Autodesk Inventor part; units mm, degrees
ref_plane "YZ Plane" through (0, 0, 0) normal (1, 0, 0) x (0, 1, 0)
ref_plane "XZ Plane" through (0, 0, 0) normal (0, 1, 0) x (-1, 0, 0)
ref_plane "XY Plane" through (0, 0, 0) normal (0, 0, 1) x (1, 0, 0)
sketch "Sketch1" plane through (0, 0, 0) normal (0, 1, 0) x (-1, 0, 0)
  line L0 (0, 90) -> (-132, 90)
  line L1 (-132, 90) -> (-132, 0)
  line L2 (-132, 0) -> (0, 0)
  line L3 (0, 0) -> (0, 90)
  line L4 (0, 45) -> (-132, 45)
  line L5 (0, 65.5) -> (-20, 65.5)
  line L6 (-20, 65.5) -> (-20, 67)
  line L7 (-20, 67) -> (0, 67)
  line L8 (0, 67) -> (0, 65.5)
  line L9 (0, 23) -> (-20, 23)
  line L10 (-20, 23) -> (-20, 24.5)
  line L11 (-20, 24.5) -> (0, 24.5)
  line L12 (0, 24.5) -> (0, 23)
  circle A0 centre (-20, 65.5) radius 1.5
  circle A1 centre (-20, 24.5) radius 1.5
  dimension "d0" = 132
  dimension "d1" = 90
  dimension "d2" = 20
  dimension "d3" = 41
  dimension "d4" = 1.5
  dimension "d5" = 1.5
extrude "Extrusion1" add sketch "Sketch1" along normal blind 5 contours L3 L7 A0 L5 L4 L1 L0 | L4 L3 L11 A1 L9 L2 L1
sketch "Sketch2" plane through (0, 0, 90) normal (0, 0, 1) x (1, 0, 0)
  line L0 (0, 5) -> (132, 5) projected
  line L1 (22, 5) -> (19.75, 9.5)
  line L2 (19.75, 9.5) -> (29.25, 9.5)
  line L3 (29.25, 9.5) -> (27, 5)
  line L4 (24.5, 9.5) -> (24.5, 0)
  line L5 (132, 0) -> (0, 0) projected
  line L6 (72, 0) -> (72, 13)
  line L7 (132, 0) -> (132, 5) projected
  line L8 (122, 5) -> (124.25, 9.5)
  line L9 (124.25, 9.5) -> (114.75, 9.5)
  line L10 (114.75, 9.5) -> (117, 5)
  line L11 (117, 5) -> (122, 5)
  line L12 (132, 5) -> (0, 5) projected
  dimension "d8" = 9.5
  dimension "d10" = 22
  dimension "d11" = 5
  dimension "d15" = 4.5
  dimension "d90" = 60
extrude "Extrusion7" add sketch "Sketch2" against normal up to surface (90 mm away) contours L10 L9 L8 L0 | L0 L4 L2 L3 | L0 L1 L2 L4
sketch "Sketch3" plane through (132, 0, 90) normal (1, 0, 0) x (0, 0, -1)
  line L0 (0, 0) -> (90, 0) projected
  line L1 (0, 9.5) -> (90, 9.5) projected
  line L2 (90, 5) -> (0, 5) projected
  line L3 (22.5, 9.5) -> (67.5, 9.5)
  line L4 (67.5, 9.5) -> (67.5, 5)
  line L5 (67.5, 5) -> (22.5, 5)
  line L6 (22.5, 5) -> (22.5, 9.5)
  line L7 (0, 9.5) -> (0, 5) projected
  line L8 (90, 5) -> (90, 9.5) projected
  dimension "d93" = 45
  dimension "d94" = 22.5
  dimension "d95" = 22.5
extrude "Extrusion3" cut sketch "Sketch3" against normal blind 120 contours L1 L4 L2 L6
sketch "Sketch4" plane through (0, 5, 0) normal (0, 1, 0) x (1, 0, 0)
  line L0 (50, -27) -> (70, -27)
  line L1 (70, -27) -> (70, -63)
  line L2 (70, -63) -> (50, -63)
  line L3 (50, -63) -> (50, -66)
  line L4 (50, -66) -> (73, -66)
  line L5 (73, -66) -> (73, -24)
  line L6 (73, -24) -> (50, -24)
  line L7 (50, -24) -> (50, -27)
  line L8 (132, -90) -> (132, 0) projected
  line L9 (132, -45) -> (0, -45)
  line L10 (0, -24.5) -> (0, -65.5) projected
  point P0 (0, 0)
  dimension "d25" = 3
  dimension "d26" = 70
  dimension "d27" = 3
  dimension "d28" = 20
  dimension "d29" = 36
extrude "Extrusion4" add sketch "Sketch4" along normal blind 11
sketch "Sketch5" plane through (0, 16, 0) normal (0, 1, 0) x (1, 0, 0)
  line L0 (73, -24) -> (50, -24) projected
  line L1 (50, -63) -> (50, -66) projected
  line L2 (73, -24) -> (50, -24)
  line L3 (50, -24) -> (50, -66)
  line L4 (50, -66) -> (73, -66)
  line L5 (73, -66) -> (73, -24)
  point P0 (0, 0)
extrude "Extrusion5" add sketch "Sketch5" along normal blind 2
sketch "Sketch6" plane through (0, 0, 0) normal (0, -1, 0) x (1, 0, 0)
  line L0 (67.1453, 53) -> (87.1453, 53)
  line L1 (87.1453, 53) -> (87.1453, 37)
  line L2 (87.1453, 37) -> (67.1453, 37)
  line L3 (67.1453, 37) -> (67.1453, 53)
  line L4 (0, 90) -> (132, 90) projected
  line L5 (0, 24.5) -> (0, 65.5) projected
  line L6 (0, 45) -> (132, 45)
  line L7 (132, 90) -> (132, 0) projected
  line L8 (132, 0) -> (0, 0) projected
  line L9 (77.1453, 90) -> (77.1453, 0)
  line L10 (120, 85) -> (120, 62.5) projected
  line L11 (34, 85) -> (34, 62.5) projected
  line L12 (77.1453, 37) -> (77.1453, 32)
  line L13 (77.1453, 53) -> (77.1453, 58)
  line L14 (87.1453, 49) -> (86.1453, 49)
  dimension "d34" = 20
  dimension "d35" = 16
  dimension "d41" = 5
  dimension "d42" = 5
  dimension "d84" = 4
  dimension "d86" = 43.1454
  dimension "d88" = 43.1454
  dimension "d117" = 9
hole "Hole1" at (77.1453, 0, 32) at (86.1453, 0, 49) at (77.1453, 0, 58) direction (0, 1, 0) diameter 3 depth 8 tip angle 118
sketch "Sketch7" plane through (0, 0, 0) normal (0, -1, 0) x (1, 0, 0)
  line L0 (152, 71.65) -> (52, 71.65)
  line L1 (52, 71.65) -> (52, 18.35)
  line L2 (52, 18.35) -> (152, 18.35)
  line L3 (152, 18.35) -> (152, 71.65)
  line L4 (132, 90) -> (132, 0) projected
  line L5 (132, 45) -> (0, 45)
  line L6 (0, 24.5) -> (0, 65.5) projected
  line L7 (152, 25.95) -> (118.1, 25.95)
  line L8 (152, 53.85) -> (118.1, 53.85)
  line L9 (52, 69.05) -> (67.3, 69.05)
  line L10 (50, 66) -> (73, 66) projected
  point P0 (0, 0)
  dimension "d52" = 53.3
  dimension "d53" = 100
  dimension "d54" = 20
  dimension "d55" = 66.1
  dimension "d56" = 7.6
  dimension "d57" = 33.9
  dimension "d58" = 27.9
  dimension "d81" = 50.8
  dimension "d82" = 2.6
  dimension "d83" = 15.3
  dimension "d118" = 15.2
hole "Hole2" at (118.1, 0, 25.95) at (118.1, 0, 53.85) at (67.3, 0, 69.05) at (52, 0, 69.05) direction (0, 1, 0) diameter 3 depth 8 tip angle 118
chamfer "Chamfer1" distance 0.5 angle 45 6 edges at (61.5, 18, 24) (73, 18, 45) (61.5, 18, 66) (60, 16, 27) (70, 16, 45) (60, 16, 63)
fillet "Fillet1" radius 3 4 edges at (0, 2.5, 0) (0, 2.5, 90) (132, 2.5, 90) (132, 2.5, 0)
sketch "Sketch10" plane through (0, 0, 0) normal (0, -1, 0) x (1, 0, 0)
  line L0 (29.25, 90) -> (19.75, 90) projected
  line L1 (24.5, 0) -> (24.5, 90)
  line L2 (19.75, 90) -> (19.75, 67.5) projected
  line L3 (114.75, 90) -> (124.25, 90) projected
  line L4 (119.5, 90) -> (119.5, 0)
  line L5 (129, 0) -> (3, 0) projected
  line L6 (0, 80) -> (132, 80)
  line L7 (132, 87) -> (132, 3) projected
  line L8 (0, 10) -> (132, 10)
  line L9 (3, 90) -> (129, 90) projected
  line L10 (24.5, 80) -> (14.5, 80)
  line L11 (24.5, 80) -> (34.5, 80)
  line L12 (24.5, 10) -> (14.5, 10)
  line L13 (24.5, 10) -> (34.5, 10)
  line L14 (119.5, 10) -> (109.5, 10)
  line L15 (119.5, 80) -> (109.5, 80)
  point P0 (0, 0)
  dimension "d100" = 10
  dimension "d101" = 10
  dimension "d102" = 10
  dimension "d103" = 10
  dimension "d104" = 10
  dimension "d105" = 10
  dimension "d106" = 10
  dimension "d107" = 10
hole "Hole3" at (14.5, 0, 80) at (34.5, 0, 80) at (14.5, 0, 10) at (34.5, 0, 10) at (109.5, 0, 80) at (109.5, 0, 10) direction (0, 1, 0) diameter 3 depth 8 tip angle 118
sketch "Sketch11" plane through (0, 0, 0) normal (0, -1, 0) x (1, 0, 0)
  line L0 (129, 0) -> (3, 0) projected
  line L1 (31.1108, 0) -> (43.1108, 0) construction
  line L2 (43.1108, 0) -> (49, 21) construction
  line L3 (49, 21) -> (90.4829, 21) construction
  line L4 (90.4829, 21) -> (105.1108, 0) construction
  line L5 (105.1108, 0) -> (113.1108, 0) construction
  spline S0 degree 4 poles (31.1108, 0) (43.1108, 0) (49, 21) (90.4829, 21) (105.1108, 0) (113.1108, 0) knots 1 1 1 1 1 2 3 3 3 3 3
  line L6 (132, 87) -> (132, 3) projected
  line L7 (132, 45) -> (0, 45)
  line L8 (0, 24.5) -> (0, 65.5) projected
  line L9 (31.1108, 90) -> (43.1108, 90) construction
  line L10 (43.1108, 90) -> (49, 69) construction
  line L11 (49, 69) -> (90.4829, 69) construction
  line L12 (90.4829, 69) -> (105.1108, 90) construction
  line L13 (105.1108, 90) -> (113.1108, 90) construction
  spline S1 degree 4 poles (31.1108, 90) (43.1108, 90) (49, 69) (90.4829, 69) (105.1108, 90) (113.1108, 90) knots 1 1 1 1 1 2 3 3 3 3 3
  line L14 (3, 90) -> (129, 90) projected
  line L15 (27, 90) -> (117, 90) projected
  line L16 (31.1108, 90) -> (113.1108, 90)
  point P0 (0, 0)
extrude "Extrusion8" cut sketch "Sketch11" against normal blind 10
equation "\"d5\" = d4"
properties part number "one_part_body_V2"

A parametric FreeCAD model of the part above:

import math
import FreeCAD as App
import Part
import Sketcher
from FreeCAD import Vector


def edges_at(feature, points):
    """Names of the edges that pass closest to the given points."""
    edges = feature.Shape.Edges
    near = lambda p: min(range(len(edges)), key=lambda i: edges[i].distToShape(Part.Vertex(*p))[0])
    return sorted({f"Edge{near(p) + 1}" for p in points})


def add_polygon(sketch, points):
    """Adds a closed chain of lines whose ends are joined by coincident constraints."""
    first, n = sketch.GeometryCount, len(points)
    for a, b in zip(points, points[1:] + points[:1]):
        sketch.addGeometry(Part.LineSegment(App.Vector(*a, 0), App.Vector(*b, 0)), False)
    for i in range(n):
        sketch.addConstraint(Sketcher.Constraint("Coincident", first + i, 2, first + (i + 1) % n, 1))

doc = App.newDocument("Part")
body = doc.addObject("PartDesign::Body", "Body")

sketch1 = body.newObject("Sketcher::SketchObject", "Sketch")
sketch1.AttachmentSupport = (doc.getObject("XZ_Plane"), [""])
sketch1.MapMode = "FlatFace"
sketch1.addGeometry([
    Part.LineSegment(Vector(0, 67, 0), Vector(0, 90, 0)),
    Part.LineSegment(Vector(0, 90, 0), Vector(132, 90, 0)),
    Part.LineSegment(Vector(132, 90, 0), Vector(132, 0, 0)),
    Part.LineSegment(Vector(132, 0, 0), Vector(0, 0, 0)),
    Part.LineSegment(Vector(0, 0, 0), Vector(0, 23, 0)),
    Part.LineSegment(Vector(0, 23, 0), Vector(20, 23, 0)),
    Part.ArcOfCircle(Part.Circle(Vector(20, 24.5, 0), Vector(0, 0, 1), 1.5), math.radians(-90), math.radians(180)),
    Part.LineSegment(Vector(18.5, 24.5, 0), Vector(0, 24.5, 0)),
    Part.LineSegment(Vector(0, 24.5, 0), Vector(0, 65.5, 0)),
    Part.LineSegment(Vector(0, 65.5, 0), Vector(18.5, 65.5, 0)),
    Part.ArcOfCircle(Part.Circle(Vector(20, 65.5, 0), Vector(0, 0, 1), 1.5), math.radians(180), math.radians(450)),
    Part.LineSegment(Vector(20, 67, 0), Vector(0, 67, 0)),
], False)
sketch1.addConstraint([
    Sketcher.Constraint("Coincident", 0, 2, 1, 1),
    Sketcher.Constraint("Coincident", 1, 2, 2, 1),
    Sketcher.Constraint("Coincident", 2, 2, 3, 1),
    Sketcher.Constraint("Coincident", 3, 2, 4, 1),
    Sketcher.Constraint("Coincident", 4, 2, 5, 1),
    Sketcher.Constraint("Tangent", 5, 2, 6, 1),
    Sketcher.Constraint("Coincident", 6, 2, 7, 1),
    Sketcher.Constraint("Coincident", 7, 2, 8, 1),
    Sketcher.Constraint("Coincident", 8, 2, 9, 1),
    Sketcher.Constraint("Coincident", 9, 2, 10, 1),
    Sketcher.Constraint("Tangent", 10, 2, 11, 1),
    Sketcher.Constraint("Coincident", 11, 2, 0, 1),
    Sketcher.Constraint("Vertical", 0),
    Sketcher.Constraint("Horizontal", 1),
    Sketcher.Constraint("Vertical", 2),
    Sketcher.Constraint("Horizontal", 3),
    Sketcher.Constraint("Vertical", 4),
    Sketcher.Constraint("Horizontal", 5),
    Sketcher.Constraint("Horizontal", 7),
    Sketcher.Constraint("Vertical", 8),
    Sketcher.Constraint("Horizontal", 9),
    Sketcher.Constraint("Horizontal", 11),
    Sketcher.Constraint("Coincident", 3, 2, -1, 1),
    Sketcher.Constraint("Equal", 6, 10),
    Sketcher.Constraint("PointOnObject", 0, 2, -2),
    Sketcher.Constraint("PointOnObject", 7, 2, -2),
    Sketcher.Constraint("Horizontal", 10, 3, 8, 2),
    Sketcher.Constraint("Vertical", 6, 3, 10, 3),
    Sketcher.Constraint("Equal", 0, 4),
    Sketcher.Constraint("Radius", 6, 1.5),
    Sketcher.Constraint("DistanceX", 1, 1, 1, 2, 132.0),
    Sketcher.Constraint("DistanceX", 5, 1, 5, 2, 20.0),
    Sketcher.Constraint("DistanceY", 2, 2, 2, 1, 90.0),
    Sketcher.Constraint("DistanceY", 8, 1, 8, 2, 41.0),
    Sketcher.Constraint("DistanceY", 6, 3, 10, 3, 41.0),
])
pad1 = body.newObject("PartDesign::Pad", "Pad")
pad1.Profile = sketch1
pad1.Length = 5
pad1.Reversed = True

sketch2 = body.newObject("Sketcher::SketchObject", "Sketch001")
sketch2.AttachmentSupport = (doc.getObject("XY_Plane"), [""])
sketch2.MapMode = "FlatFace"
sketch2.AttachmentOffset = App.Placement(Vector(0, 0, 90), App.Rotation())
add_polygon(sketch2, [(115, 10), (117, 5), (122, 5), (124, 10)])
add_polygon(sketch2, [(27, 5), (29, 10), (20, 10), (22, 5)])
sketch2.addConstraint([
    Sketcher.Constraint("Horizontal", 1),
    Sketcher.Constraint("Horizontal", 3),
    Sketcher.Constraint("Horizontal", 5),
    Sketcher.Constraint("Horizontal", 7),
    Sketcher.Constraint("Parallel", 2, 4),
    Sketcher.Constraint("Parallel", 0, 6),
    Sketcher.Constraint("Horizontal", 3, 2, 4, 2),
    Sketcher.Constraint("Horizontal", 1, 2, 6, 2),
    Sketcher.Constraint("Equal", 3, 5),
    Sketcher.Constraint("Equal", 0, 2),
    Sketcher.Constraint("DistanceX", 1, 1, 1, 2, 5.0),
    Sketcher.Constraint("DistanceX", 3, 2, 3, 1, 9.5),
    Sketcher.Constraint("DistanceY", -1, 1, 0, 2, 5.0),
    Sketcher.Constraint("DistanceX", -1, 1, 6, 2, 22.0),
    Sketcher.Constraint("DistanceY", -1, 1, 2, 2, 9.5),
    Sketcher.Constraint("DistanceX", -1, 1, 0, 2, 117.0),
])
pad2 = body.newObject("PartDesign::Pad", "Pad001")
pad2.Profile = sketch2
pad2.Length = 90
pad2.Reversed = True

sketch3 = body.newObject("Sketcher::SketchObject", "Sketch002")
sketch3.AttachmentSupport = (doc.getObject("YZ_Plane"), [""])
sketch3.MapMode = "FlatFace"
sketch3.AttachmentOffset = App.Placement(Vector(0, 0, 132), App.Rotation())
add_polygon(sketch3, [(9.5, 22.5), (9.5, 67.5), (5, 67.5), (5, 22.5)])
sketch3.addConstraint([
    Sketcher.Constraint("Vertical", 0),
    Sketcher.Constraint("Horizontal", 1),
    Sketcher.Constraint("Vertical", 2),
    Sketcher.Constraint("Horizontal", 3),
    Sketcher.Constraint("DistanceY", 0, 1, 0, 2, 45.0),
    Sketcher.Constraint("DistanceY", -1, 1, 2, 2, 22.5),
    Sketcher.Constraint("DistanceX", 1, 2, 1, 1, 4.5),
    Sketcher.Constraint("DistanceX", -1, 1, 1, 2, 5.0),
])
pocket1 = body.newObject("PartDesign::Pocket", "Pocket")
pocket1.Profile = sketch3
pocket1.Length = 120

sketch4 = body.newObject("Sketcher::SketchObject", "Sketch003")
sketch4.AttachmentSupport = (doc.getObject("XZ_Plane"), [""])
sketch4.MapMode = "FlatFace"
sketch4.AttachmentOffset = App.Placement(Vector(0, 0, -5), App.Rotation())
add_polygon(sketch4, [(50, 24), (50, 27), (70, 27), (70, 63), (50, 63), (50, 66), (73, 66), (73, 24)])
sketch4.addConstraint([
    Sketcher.Constraint("Vertical", 0),
    Sketcher.Constraint("Horizontal", 1),
    Sketcher.Constraint("Vertical", 2),
    Sketcher.Constraint("Horizontal", 3),
    Sketcher.Constraint("Vertical", 4),
    Sketcher.Constraint("Horizontal", 5),
    Sketcher.Constraint("Vertical", 6),
    Sketcher.Constraint("Horizontal", 7),
    Sketcher.Constraint("Vertical", 0, 2, 3, 2),
    Sketcher.Constraint("Equal", 0, 4),
    Sketcher.Constraint("DistanceX", 1, 1, 1, 2, 20.0),
    Sketcher.Constraint("DistanceY", 0, 1, 0, 2, 3.0),
    Sketcher.Constraint("DistanceY", 2, 1, 2, 2, 36.0),
    Sketcher.Constraint("DistanceX", -1, 1, 1, 2, 70.0),
    Sketcher.Constraint("DistanceX", 2, 2, 5, 2, 3.0),
    Sketcher.Constraint("DistanceY", -1, 1, 0, 2, 27.0),
])
pad3 = body.newObject("PartDesign::Pad", "Pad002")
pad3.Profile = sketch4
pad3.Length = 11
pad3.Reversed = True

sketch5 = body.newObject("Sketcher::SketchObject", "Sketch004")
sketch5.AttachmentSupport = (doc.getObject("XZ_Plane"), [""])
sketch5.MapMode = "FlatFace"
sketch5.AttachmentOffset = App.Placement(Vector(0, 0, -16), App.Rotation())
add_polygon(sketch5, [(73, 66), (73, 24), (50, 24), (50, 66)])
sketch5.addConstraint([
    Sketcher.Constraint("Vertical", 0),
    Sketcher.Constraint("Horizontal", 1),
    Sketcher.Constraint("Vertical", 2),
    Sketcher.Constraint("Horizontal", 3),
    Sketcher.Constraint("DistanceX", 1, 2, 1, 1, 23.0),
    Sketcher.Constraint("DistanceY", 0, 2, 0, 1, 42.0),
    Sketcher.Constraint("DistanceX", -1, 1, 0, 2, 73.0),
    Sketcher.Constraint("DistanceY", -1, 1, 0, 2, 24.0),
])
pad4 = body.newObject("PartDesign::Pad", "Pad003")
pad4.Profile = sketch5
pad4.Length = 2
pad4.Reversed = True

sketch6 = body.newObject("Sketcher::SketchObject", "Sketch005")
sketch6.AttachmentSupport = (doc.getObject("XZ_Plane"), [""])
sketch6.MapMode = "FlatFace"
sketch6.addGeometry([
    Part.Circle(Vector(77.1, 32, 0), Vector(0, 0, 1), 1.5),
    Part.Circle(Vector(86.1, 49, 0), Vector(0, 0, 1), 1.5),
    Part.Circle(Vector(77.1, 58, 0), Vector(0, 0, 1), 1.5),
], False)
sketch6.addConstraint([
    Sketcher.Constraint("Equal", 0, 1),
    Sketcher.Constraint("Equal", 1, 2),
    Sketcher.Constraint("Vertical", 0, 3, 2, 3),
    Sketcher.Constraint("Diameter", 0, 3.0),
    Sketcher.Constraint("DistanceY", -1, 1, 0, 3, 32.0),
    Sketcher.Constraint("DistanceY", -1, 1, 1, 3, 49.0),
    Sketcher.Constraint("DistanceY", -1, 1, 2, 3, 58.0),
    Sketcher.Constraint("DistanceX", 0, 3, 1, 3, 9.0),
    Sketcher.Constraint("DistanceX", -1, 1, 0, 3, 77.1453),
])
doc.recompute()
hole = body.newObject("PartDesign::Hole", "Hole")
hole.Profile = sketch6
hole.ThreadType = "None"
hole.Diameter = 3
hole.DepthType = "Dimension"
hole.Depth = 8
hole.DrillPoint = "Angled"
hole.DrillPointAngle = 118

sketch7 = body.newObject("Sketcher::SketchObject", "Sketch006")
sketch7.AttachmentSupport = (doc.getObject("XZ_Plane"), [""])
sketch7.MapMode = "FlatFace"
sketch7.addGeometry([
    Part.Circle(Vector(118.1, 25.9, 0), Vector(0, 0, 1), 1.5),
    Part.Circle(Vector(118.1, 53.9, 0), Vector(0, 0, 1), 1.5),
    Part.Circle(Vector(67.3, 69, 0), Vector(0, 0, 1), 1.5),
    Part.Circle(Vector(52, 69, 0), Vector(0, 0, 1), 1.5),
], False)
sketch7.addConstraint([
    Sketcher.Constraint("Equal", 0, 1),
    Sketcher.Constraint("Equal", 1, 2),
    Sketcher.Constraint("Equal", 2, 3),
    Sketcher.Constraint("Horizontal", 2, 3, 3, 3),
    Sketcher.Constraint("Vertical", 0, 3, 1, 3),
    Sketcher.Constraint("Diameter", 0, 3.0),
    Sketcher.Constraint("DistanceX", -1, 1, 3, 3, 52.0),
    Sketcher.Constraint("DistanceX", -1, 1, 0, 3, 118.1),
    Sketcher.Constraint("DistanceX", -1, 1, 2, 3, 67.3),
    Sketcher.Constraint("DistanceY", 0, 3, 1, 3, 27.9),
    Sketcher.Constraint("DistanceY", 1, 3, 2, 3, 15.2),
    Sketcher.Constraint("DistanceY", -1, 1, 0, 3, 25.95),
])
doc.recompute()
hole2 = body.newObject("PartDesign::Hole", "Hole001")
hole2.Profile = sketch7
hole2.ThreadType = "None"
hole2.Diameter = 3
hole2.DepthType = "Dimension"
hole2.Depth = 8
hole2.DrillPoint = "Angled"
hole2.DrillPointAngle = 118
doc.recompute()

chamfer = body.newObject("PartDesign::Chamfer", "Chamfer")
chamfer.Base = (hole2, edges_at(hole2, [
    (61.5, 18, 24),
    (73, 18, 45),
    (61.5, 18, 66),
    (60, 16, 27),
    (70, 16, 45),
    (60, 16, 63),
]))
chamfer.Size = 0.5
doc.recompute()

fillet = body.newObject("PartDesign::Fillet", "Fillet")
fillet.Base = (chamfer, edges_at(chamfer, [
    (0, 2.5, 0),
    (0, 2.5, 90),
    (132, 2.5, 90),
    (132, 2.5, 0),
]))
fillet.Radius = 3

sketch8 = body.newObject("Sketcher::SketchObject", "Sketch007")
sketch8.AttachmentSupport = (doc.getObject("XZ_Plane"), [""])
sketch8.MapMode = "FlatFace"
sketch8.addGeometry([
    Part.Circle(Vector(14.5, 80, 0), Vector(0, 0, 1), 1.5),
    Part.Circle(Vector(34.5, 80, 0), Vector(0, 0, 1), 1.5),
    Part.Circle(Vector(14.5, 10, 0), Vector(0, 0, 1), 1.5),
    Part.Circle(Vector(34.5, 10, 0), Vector(0, 0, 1), 1.5),
    Part.Circle(Vector(109.5, 80, 0), Vector(0, 0, 1), 1.5),
    Part.Circle(Vector(109.5, 10, 0), Vector(0, 0, 1), 1.5),
], False)
sketch8.addConstraint([
    Sketcher.Constraint("Equal", 0, 1),
    Sketcher.Constraint("Equal", 1, 2),
    Sketcher.Constraint("Equal", 2, 3),
    Sketcher.Constraint("Equal", 3, 4),
    Sketcher.Constraint("Equal", 4, 5),
    Sketcher.Constraint("Horizontal", 0, 3, 1, 3),
    Sketcher.Constraint("Horizontal", 2, 3, 3, 3),
    Sketcher.Constraint("Horizontal", 1, 3, 4, 3),
    Sketcher.Constraint("Horizontal", 3, 3, 5, 3),
    Sketcher.Constraint("Vertical", 0, 3, 2, 3),
    Sketcher.Constraint("Vertical", 1, 3, 3, 3),
    Sketcher.Constraint("Vertical", 4, 3, 5, 3),
    Sketcher.Constraint("Diameter", 0, 3.0),
    Sketcher.Constraint("DistanceY", -1, 1, 0, 3, 80.0),
    Sketcher.Constraint("DistanceY", -1, 1, 2, 3, 10.0),
    Sketcher.Constraint("DistanceX", 0, 3, 1, 3, 20.0),
    Sketcher.Constraint("DistanceX", 1, 3, 4, 3, 75.0),
    Sketcher.Constraint("DistanceX", -1, 1, 0, 3, 14.5),
])
doc.recompute()
hole3 = body.newObject("PartDesign::Hole", "Hole002")
hole3.Profile = sketch8
hole3.ThreadType = "None"
hole3.Diameter = 3
hole3.DepthType = "Dimension"
hole3.Depth = 8
hole3.DrillPoint = "Angled"
hole3.DrillPointAngle = 118

sketch9 = body.newObject("Sketcher::SketchObject", "Sketch008")
sketch9.AttachmentSupport = (doc.getObject("XZ_Plane"), [""])
sketch9.MapMode = "FlatFace"
sketch9.addGeometry([
    Part.LineSegment(Vector(31.1108, 0, 0), Vector(113.1108, 0, 0)),
    Part.BSplineCurve([Vector(31.1108, 0, 0), Vector(43.1108, 0, 0), Vector(49, 21, 0), Vector(90.4829, 21, 0), Vector(105.1108, 0, 0), Vector(113.1108, 0, 0)], [5, 1, 5], [1, 2, 3], False, 4, [1, 1, 1, 1, 1, 1], False),
    Part.LineSegment(Vector(113.1108, 90, 0), Vector(31.1108, 90, 0)),
    Part.BSplineCurve([Vector(31.1108, 90, 0), Vector(43.1108, 90, 0), Vector(49, 69, 0), Vector(90.4829, 69, 0), Vector(105.1108, 90, 0), Vector(113.1108, 90, 0)], [5, 1, 5], [1, 2, 3], False, 4, [1, 1, 1, 1, 1, 1], False),
], False)
sketch9.addConstraint([
    Sketcher.Constraint("Block", 1),
    Sketcher.Constraint("Block", 3),
    Sketcher.Constraint("Coincident", 0, 1, 1, 1),
    Sketcher.Constraint("Coincident", 1, 2, 0, 2),
    Sketcher.Constraint("Coincident", 2, 1, 3, 2),
    Sketcher.Constraint("Coincident", 3, 1, 2, 2),
])
pocket2 = body.newObject("PartDesign::Pocket", "Pocket001")
pocket2.Profile = sketch9
pocket2.Length = 10

doc.recompute()
